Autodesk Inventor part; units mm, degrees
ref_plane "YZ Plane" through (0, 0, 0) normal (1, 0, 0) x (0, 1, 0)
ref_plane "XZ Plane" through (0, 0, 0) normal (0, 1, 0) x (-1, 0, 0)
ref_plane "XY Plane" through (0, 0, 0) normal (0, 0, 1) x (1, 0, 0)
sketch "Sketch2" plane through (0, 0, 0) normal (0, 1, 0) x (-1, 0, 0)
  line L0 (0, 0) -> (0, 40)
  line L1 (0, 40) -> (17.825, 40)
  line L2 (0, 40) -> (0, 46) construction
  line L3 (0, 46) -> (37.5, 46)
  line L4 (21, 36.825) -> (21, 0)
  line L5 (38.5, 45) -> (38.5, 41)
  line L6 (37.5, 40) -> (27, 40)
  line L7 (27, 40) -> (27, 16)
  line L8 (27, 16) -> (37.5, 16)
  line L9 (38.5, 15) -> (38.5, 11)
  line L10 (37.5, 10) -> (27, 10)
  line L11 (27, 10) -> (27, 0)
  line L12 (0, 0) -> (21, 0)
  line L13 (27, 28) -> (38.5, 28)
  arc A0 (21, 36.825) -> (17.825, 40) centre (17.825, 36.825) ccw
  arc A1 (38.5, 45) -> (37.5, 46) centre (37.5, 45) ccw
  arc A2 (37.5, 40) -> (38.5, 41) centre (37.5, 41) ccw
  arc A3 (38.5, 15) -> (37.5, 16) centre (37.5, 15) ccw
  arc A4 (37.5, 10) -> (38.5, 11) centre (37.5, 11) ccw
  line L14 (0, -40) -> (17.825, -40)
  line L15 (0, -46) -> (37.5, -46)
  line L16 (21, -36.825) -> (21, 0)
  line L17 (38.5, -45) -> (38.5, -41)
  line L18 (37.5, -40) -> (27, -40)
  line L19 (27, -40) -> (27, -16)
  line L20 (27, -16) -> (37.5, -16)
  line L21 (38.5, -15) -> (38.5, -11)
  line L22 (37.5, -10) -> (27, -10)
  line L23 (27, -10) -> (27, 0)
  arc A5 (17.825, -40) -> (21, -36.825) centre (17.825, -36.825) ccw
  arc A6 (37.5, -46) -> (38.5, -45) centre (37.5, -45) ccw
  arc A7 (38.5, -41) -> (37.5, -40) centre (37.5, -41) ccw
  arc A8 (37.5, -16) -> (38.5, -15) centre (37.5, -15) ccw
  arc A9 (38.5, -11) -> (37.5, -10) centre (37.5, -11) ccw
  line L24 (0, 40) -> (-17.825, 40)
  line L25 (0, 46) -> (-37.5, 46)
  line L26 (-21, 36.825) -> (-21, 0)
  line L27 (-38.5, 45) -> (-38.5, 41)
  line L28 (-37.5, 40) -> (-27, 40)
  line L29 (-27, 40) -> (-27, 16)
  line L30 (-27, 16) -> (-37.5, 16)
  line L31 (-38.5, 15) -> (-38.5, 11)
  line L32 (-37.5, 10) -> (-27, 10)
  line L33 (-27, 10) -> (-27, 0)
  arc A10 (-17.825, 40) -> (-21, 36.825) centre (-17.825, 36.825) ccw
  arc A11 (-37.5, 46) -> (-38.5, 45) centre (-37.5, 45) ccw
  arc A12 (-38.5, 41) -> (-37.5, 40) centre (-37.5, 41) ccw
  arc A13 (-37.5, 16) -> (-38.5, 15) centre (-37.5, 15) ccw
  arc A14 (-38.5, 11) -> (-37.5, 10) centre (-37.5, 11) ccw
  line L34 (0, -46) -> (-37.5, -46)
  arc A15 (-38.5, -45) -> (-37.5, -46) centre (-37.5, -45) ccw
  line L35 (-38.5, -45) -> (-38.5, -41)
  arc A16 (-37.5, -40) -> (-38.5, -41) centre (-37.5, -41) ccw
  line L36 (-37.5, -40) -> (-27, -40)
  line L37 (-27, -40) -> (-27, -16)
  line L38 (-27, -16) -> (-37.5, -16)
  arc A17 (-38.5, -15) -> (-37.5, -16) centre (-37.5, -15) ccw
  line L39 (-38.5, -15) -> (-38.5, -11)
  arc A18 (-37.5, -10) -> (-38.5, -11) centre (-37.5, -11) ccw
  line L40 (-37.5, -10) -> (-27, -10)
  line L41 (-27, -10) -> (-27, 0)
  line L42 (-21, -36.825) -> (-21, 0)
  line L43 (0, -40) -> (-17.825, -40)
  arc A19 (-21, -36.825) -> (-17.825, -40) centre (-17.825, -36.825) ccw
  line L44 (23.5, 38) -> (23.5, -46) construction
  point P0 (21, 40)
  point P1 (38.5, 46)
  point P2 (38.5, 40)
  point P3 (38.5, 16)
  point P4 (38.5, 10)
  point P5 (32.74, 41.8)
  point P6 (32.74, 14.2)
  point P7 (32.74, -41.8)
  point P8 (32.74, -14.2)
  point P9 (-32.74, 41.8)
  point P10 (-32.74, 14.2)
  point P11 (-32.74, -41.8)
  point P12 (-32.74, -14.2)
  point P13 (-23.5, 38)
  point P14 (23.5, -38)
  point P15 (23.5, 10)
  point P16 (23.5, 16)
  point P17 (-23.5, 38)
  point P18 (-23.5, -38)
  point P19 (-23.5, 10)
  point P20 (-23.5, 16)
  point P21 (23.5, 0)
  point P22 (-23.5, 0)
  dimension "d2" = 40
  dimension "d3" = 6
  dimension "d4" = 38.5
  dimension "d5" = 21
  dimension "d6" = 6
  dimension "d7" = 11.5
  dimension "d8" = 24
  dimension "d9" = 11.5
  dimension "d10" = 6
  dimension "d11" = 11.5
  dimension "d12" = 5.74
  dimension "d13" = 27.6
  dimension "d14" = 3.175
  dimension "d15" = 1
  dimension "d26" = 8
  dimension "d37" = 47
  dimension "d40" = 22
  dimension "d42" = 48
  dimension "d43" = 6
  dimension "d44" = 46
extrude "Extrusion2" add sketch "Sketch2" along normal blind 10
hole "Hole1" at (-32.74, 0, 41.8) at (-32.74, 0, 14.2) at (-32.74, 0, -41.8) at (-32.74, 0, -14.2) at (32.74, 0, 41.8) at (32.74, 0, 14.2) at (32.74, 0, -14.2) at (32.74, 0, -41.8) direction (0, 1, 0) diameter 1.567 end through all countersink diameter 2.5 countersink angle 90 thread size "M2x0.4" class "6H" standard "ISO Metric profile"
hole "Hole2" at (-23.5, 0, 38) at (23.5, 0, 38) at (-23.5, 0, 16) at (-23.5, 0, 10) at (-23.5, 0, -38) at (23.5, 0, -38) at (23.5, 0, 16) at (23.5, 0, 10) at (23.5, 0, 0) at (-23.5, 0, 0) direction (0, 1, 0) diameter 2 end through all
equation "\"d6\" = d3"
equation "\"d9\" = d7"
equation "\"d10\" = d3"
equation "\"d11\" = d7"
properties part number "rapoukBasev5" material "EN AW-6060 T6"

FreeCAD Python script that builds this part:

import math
import FreeCAD as App
import Part
import Sketcher
Q = App.Units.Quantity

doc = App.newDocument("Part")
params = doc.addObject("Spreadsheet::Sheet", "Params")
for row, (alias, value) in enumerate([
    ("sketch1_radius", "1 mm"),
    ("sketch1_height", "24 mm"),
    ("sketch1_width", "10.5 mm"),
    ("pad1_length", "10 mm"),
    ("hole_diameter", "1.567 mm"),
    ("hole_csink_diameter", "2.5 mm"),
    ("sketch3_diameter", "2 mm"),
    ("hole2_diameter", "2 mm"),
], start=1):
    params.set(f"A{row}", alias)
    params.set(f"B{row}", "=" + value)
    params.setAlias(f"B{row}", alias)

body = doc.addObject("PartDesign::Body", "Body")

# Sketch on XZ plane
sketch1 = body.newObject("Sketcher::SketchObject", "Sketch")
sketch1.AttachmentSupport = (doc.getObject("XZ_Plane"), [""])
sketch1.MapMode = "FlatFace"
sketch1.addGeometry(Part.LineSegment(App.Vector(-37.5, 46, 0), App.Vector(37.5, 46, 0)), False)
sketch1.addGeometry(Part.ArcOfCircle(Part.Circle(App.Vector(37.5, 45, 0), App.Vector(0, 0, 1), 1), math.radians(0), math.radians(90)), False)
sketch1.addGeometry(Part.LineSegment(App.Vector(38.5, 45, 0), App.Vector(38.5, 41, 0)), False)
sketch1.addGeometry(Part.ArcOfCircle(Part.Circle(App.Vector(37.5, 41, 0), App.Vector(0, 0, 1), 1), math.radians(-90), math.radians(0)), False)
sketch1.addGeometry(Part.LineSegment(App.Vector(37.5, 40, 0), App.Vector(27, 40, 0)), False)
sketch1.addGeometry(Part.LineSegment(App.Vector(27, 40, 0), App.Vector(27, 16, 0)), False)
sketch1.addGeometry(Part.LineSegment(App.Vector(27, 16, 0), App.Vector(37.5, 16, 0)), False)
sketch1.addGeometry(Part.ArcOfCircle(Part.Circle(App.Vector(37.5, 15, 0), App.Vector(0, 0, 1), 1), math.radians(0), math.radians(90)), False)
sketch1.addGeometry(Part.LineSegment(App.Vector(38.5, 15, 0), App.Vector(38.5, 11, 0)), False)
sketch1.addGeometry(Part.ArcOfCircle(Part.Circle(App.Vector(37.5, 11, 0), App.Vector(0, 0, 1), 1), math.radians(-90), math.radians(0)), False)
sketch1.addGeometry(Part.LineSegment(App.Vector(37.5, 10, 0), App.Vector(27, 10, 0)), False)
sketch1.addGeometry(Part.LineSegment(App.Vector(27, 10, 0), App.Vector(27, -10, 0)), False)
sketch1.addGeometry(Part.LineSegment(App.Vector(27, -10, 0), App.Vector(37.5, -10, 0)), False)
sketch1.addGeometry(Part.ArcOfCircle(Part.Circle(App.Vector(37.5, -11, 0), App.Vector(0, 0, 1), 1), math.radians(0), math.radians(90)), False)
sketch1.addGeometry(Part.LineSegment(App.Vector(38.5, -11, 0), App.Vector(38.5, -15, 0)), False)
sketch1.addGeometry(Part.ArcOfCircle(Part.Circle(App.Vector(37.5, -15, 0), App.Vector(0, 0, 1), 1), math.radians(-90), math.radians(0)), False)
sketch1.addGeometry(Part.LineSegment(App.Vector(37.5, -16, 0), App.Vector(27, -16, 0)), False)
sketch1.addGeometry(Part.LineSegment(App.Vector(27, -16, 0), App.Vector(27, -40, 0)), False)
sketch1.addGeometry(Part.LineSegment(App.Vector(27, -40, 0), App.Vector(37.5, -40, 0)), False)
sketch1.addGeometry(Part.ArcOfCircle(Part.Circle(App.Vector(37.5, -41, 0), App.Vector(0, 0, 1), 1), math.radians(0), math.radians(90)), False)
sketch1.addGeometry(Part.LineSegment(App.Vector(38.5, -41, 0), App.Vector(38.5, -45, 0)), False)
sketch1.addGeometry(Part.ArcOfCircle(Part.Circle(App.Vector(37.5, -45, 0), App.Vector(0, 0, 1), 1), math.radians(-90), math.radians(0)), False)
sketch1.addGeometry(Part.LineSegment(App.Vector(37.5, -46, 0), App.Vector(-37.5, -46, 0)), False)
sketch1.addGeometry(Part.ArcOfCircle(Part.Circle(App.Vector(-37.5, -45, 0), App.Vector(0, 0, 1), 1), math.radians(180), math.radians(270)), False)
sketch1.addGeometry(Part.LineSegment(App.Vector(-38.5, -45, 0), App.Vector(-38.5, -41, 0)), False)
sketch1.addGeometry(Part.ArcOfCircle(Part.Circle(App.Vector(-37.5, -41, 0), App.Vector(0, 0, 1), 1), math.radians(90), math.radians(180)), False)
sketch1.addGeometry(Part.LineSegment(App.Vector(-37.5, -40, 0), App.Vector(-27, -40, 0)), False)
sketch1.addGeometry(Part.LineSegment(App.Vector(-27, -40, 0), App.Vector(-27, -16, 0)), False)
sketch1.addGeometry(Part.LineSegment(App.Vector(-27, -16, 0), App.Vector(-37.5, -16, 0)), False)
sketch1.addGeometry(Part.ArcOfCircle(Part.Circle(App.Vector(-37.5, -15, 0), App.Vector(0, 0, 1), 1), math.radians(180), math.radians(270)), False)
sketch1.addGeometry(Part.LineSegment(App.Vector(-38.5, -15, 0), App.Vector(-38.5, -11, 0)), False)
sketch1.addGeometry(Part.ArcOfCircle(Part.Circle(App.Vector(-37.5, -11, 0), App.Vector(0, 0, 1), 1), math.radians(90), math.radians(180)), False)
sketch1.addGeometry(Part.LineSegment(App.Vector(-37.5, -10, 0), App.Vector(-27, -10, 0)), False)
sketch1.addGeometry(Part.LineSegment(App.Vector(-27, -10, 0), App.Vector(-27, 10, 0)), False)
sketch1.addGeometry(Part.LineSegment(App.Vector(-27, 10, 0), App.Vector(-37.5, 10, 0)), False)
sketch1.addGeometry(Part.ArcOfCircle(Part.Circle(App.Vector(-37.5, 11, 0), App.Vector(0, 0, 1), 1), math.radians(180), math.radians(270)), False)
sketch1.addGeometry(Part.LineSegment(App.Vector(-38.5, 11, 0), App.Vector(-38.5, 15, 0)), False)
sketch1.addGeometry(Part.ArcOfCircle(Part.Circle(App.Vector(-37.5, 15, 0), App.Vector(0, 0, 1), 1), math.radians(90), math.radians(180)), False)
sketch1.addGeometry(Part.LineSegment(App.Vector(-37.5, 16, 0), App.Vector(-27, 16, 0)), False)
sketch1.addGeometry(Part.LineSegment(App.Vector(-27, 16, 0), App.Vector(-27, 40, 0)), False)
sketch1.addGeometry(Part.LineSegment(App.Vector(-27, 40, 0), App.Vector(-37.5, 40, 0)), False)
sketch1.addGeometry(Part.ArcOfCircle(Part.Circle(App.Vector(-37.5, 41, 0), App.Vector(0, 0, 1), 1), math.radians(180), math.radians(270)), False)
sketch1.addGeometry(Part.LineSegment(App.Vector(-38.5, 41, 0), App.Vector(-38.5, 45, 0)), False)
sketch1.addGeometry(Part.ArcOfCircle(Part.Circle(App.Vector(-37.5, 45, 0), App.Vector(0, 0, 1), 1), math.radians(90), math.radians(180)), False)
sketch1.addGeometry(Part.LineSegment(App.Vector(17.825, 40, 0), App.Vector(-17.825, 40, 0)), False)
sketch1.addGeometry(Part.ArcOfCircle(Part.Circle(App.Vector(-17.825, 36.825, 0), App.Vector(0, 0, 1), 3.175), math.radians(90), math.radians(180)), False)
sketch1.addGeometry(Part.LineSegment(App.Vector(-21, 36.825, 0), App.Vector(-21, -36.825, 0)), False)
sketch1.addGeometry(Part.ArcOfCircle(Part.Circle(App.Vector(-17.825, -36.825, 0), App.Vector(0, 0, 1), 3.175), math.radians(180), math.radians(270)), False)
sketch1.addGeometry(Part.LineSegment(App.Vector(-17.825, -40, 0), App.Vector(17.825, -40, 0)), False)
sketch1.addGeometry(Part.ArcOfCircle(Part.Circle(App.Vector(17.825, -36.825, 0), App.Vector(0, 0, 1), 3.175), math.radians(-90), math.radians(0)), False)
sketch1.addGeometry(Part.LineSegment(App.Vector(21, -36.825, 0), App.Vector(21, 36.825, 0)), False)
sketch1.addGeometry(Part.ArcOfCircle(Part.Circle(App.Vector(17.825, 36.825, 0), App.Vector(0, 0, 1), 3.175), math.radians(0), math.radians(90)), False)
sketch1.addConstraint(Sketcher.Constraint("Tangent", 0, 2, 1, 2))
sketch1.addConstraint(Sketcher.Constraint("Tangent", 1, 1, 2, 1))
sketch1.addConstraint(Sketcher.Constraint("Tangent", 2, 2, 3, 2))
sketch1.addConstraint(Sketcher.Constraint("Tangent", 3, 1, 4, 1))
sketch1.addConstraint(Sketcher.Constraint("Coincident", 4, 2, 5, 1))
sketch1.addConstraint(Sketcher.Constraint("Coincident", 5, 2, 6, 1))
sketch1.addConstraint(Sketcher.Constraint("Tangent", 6, 2, 7, 2))
sketch1.addConstraint(Sketcher.Constraint("Tangent", 7, 1, 8, 1))
sketch1.addConstraint(Sketcher.Constraint("Tangent", 8, 2, 9, 2))
sketch1.addConstraint(Sketcher.Constraint("Tangent", 9, 1, 10, 1))
sketch1.addConstraint(Sketcher.Constraint("Coincident", 10, 2, 11, 1))
sketch1.addConstraint(Sketcher.Constraint("Coincident", 11, 2, 12, 1))
sketch1.addConstraint(Sketcher.Constraint("Tangent", 12, 2, 13, 2))
sketch1.addConstraint(Sketcher.Constraint("Tangent", 13, 1, 14, 1))
sketch1.addConstraint(Sketcher.Constraint("Tangent", 14, 2, 15, 2))
sketch1.addConstraint(Sketcher.Constraint("Tangent", 15, 1, 16, 1))
sketch1.addConstraint(Sketcher.Constraint("Coincident", 16, 2, 17, 1))
sketch1.addConstraint(Sketcher.Constraint("Coincident", 17, 2, 18, 1))
sketch1.addConstraint(Sketcher.Constraint("Tangent", 18, 2, 19, 2))
sketch1.addConstraint(Sketcher.Constraint("Tangent", 19, 1, 20, 1))
sketch1.addConstraint(Sketcher.Constraint("Tangent", 20, 2, 21, 2))
sketch1.addConstraint(Sketcher.Constraint("Tangent", 21, 1, 22, 1))
sketch1.addConstraint(Sketcher.Constraint("Tangent", 22, 2, 23, 2))
sketch1.addConstraint(Sketcher.Constraint("Tangent", 23, 1, 24, 1))
sketch1.addConstraint(Sketcher.Constraint("Tangent", 24, 2, 25, 2))
sketch1.addConstraint(Sketcher.Constraint("Tangent", 25, 1, 26, 1))
sketch1.addConstraint(Sketcher.Constraint("Coincident", 26, 2, 27, 1))
sketch1.addConstraint(Sketcher.Constraint("Coincident", 27, 2, 28, 1))
sketch1.addConstraint(Sketcher.Constraint("Tangent", 28, 2, 29, 2))
sketch1.addConstraint(Sketcher.Constraint("Tangent", 29, 1, 30, 1))
sketch1.addConstraint(Sketcher.Constraint("Tangent", 30, 2, 31, 2))
sketch1.addConstraint(Sketcher.Constraint("Tangent", 31, 1, 32, 1))
sketch1.addConstraint(Sketcher.Constraint("Coincident", 32, 2, 33, 1))
sketch1.addConstraint(Sketcher.Constraint("Coincident", 33, 2, 34, 1))
sketch1.addConstraint(Sketcher.Constraint("Tangent", 34, 2, 35, 2))
sketch1.addConstraint(Sketcher.Constraint("Tangent", 35, 1, 36, 1))
sketch1.addConstraint(Sketcher.Constraint("Tangent", 36, 2, 37, 2))
sketch1.addConstraint(Sketcher.Constraint("Tangent", 37, 1, 38, 1))
sketch1.addConstraint(Sketcher.Constraint("Coincident", 38, 2, 39, 1))
sketch1.addConstraint(Sketcher.Constraint("Coincident", 39, 2, 40, 1))
sketch1.addConstraint(Sketcher.Constraint("Tangent", 40, 2, 41, 2))
sketch1.addConstraint(Sketcher.Constraint("Tangent", 41, 1, 42, 1))
sketch1.addConstraint(Sketcher.Constraint("Tangent", 42, 2, 43, 2))
sketch1.addConstraint(Sketcher.Constraint("Tangent", 43, 1, 0, 1))
sketch1.addConstraint(Sketcher.Constraint("Tangent", 44, 2, 45, 1))
sketch1.addConstraint(Sketcher.Constraint("Tangent", 45, 2, 46, 1))
sketch1.addConstraint(Sketcher.Constraint("Tangent", 46, 2, 47, 1))
sketch1.addConstraint(Sketcher.Constraint("Tangent", 47, 2, 48, 1))
sketch1.addConstraint(Sketcher.Constraint("Tangent", 48, 2, 49, 1))
sketch1.addConstraint(Sketcher.Constraint("Tangent", 49, 2, 50, 1))
sketch1.addConstraint(Sketcher.Constraint("Tangent", 50, 2, 51, 1))
sketch1.addConstraint(Sketcher.Constraint("Tangent", 51, 2, 44, 1))
sketch1.addConstraint(Sketcher.Constraint("Horizontal", 0))
sketch1.addConstraint(Sketcher.Constraint("Vertical", 2))
sketch1.addConstraint(Sketcher.Constraint("Horizontal", 4))
sketch1.addConstraint(Sketcher.Constraint("Vertical", 5))
sketch1.addConstraint(Sketcher.Constraint("Horizontal", 6))
sketch1.addConstraint(Sketcher.Constraint("Vertical", 8))
sketch1.addConstraint(Sketcher.Constraint("Horizontal", 10))
sketch1.addConstraint(Sketcher.Constraint("Vertical", 11))
sketch1.addConstraint(Sketcher.Constraint("Horizontal", 12))
sketch1.addConstraint(Sketcher.Constraint("Vertical", 14))
sketch1.addConstraint(Sketcher.Constraint("Horizontal", 16))
sketch1.addConstraint(Sketcher.Constraint("Vertical", 17))
sketch1.addConstraint(Sketcher.Constraint("Horizontal", 18))
sketch1.addConstraint(Sketcher.Constraint("Vertical", 20))
sketch1.addConstraint(Sketcher.Constraint("Horizontal", 22))
sketch1.addConstraint(Sketcher.Constraint("Vertical", 24))
sketch1.addConstraint(Sketcher.Constraint("Horizontal", 26))
sketch1.addConstraint(Sketcher.Constraint("Vertical", 27))
sketch1.addConstraint(Sketcher.Constraint("Horizontal", 28))
sketch1.addConstraint(Sketcher.Constraint("Vertical", 30))
sketch1.addConstraint(Sketcher.Constraint("Horizontal", 32))
sketch1.addConstraint(Sketcher.Constraint("Vertical", 33))
sketch1.addConstraint(Sketcher.Constraint("Horizontal", 34))
sketch1.addConstraint(Sketcher.Constraint("Vertical", 36))
sketch1.addConstraint(Sketcher.Constraint("Horizontal", 38))
sketch1.addConstraint(Sketcher.Constraint("Vertical", 39))
sketch1.addConstraint(Sketcher.Constraint("Horizontal", 40))
sketch1.addConstraint(Sketcher.Constraint("Vertical", 42))
sketch1.addConstraint(Sketcher.Constraint("Horizontal", 44))
sketch1.addConstraint(Sketcher.Constraint("Vertical", 46))
sketch1.addConstraint(Sketcher.Constraint("Horizontal", 48))
sketch1.addConstraint(Sketcher.Constraint("Vertical", 50))
sketch1.addConstraint(Sketcher.Constraint("Equal", 1, 3))
sketch1.addConstraint(Sketcher.Constraint("Equal", 3, 7))
sketch1.addConstraint(Sketcher.Constraint("Equal", 7, 9))
sketch1.addConstraint(Sketcher.Constraint("Equal", 9, 13))
sketch1.addConstraint(Sketcher.Constraint("Equal", 13, 15))
sketch1.addConstraint(Sketcher.Constraint("Equal", 15, 19))
sketch1.addConstraint(Sketcher.Constraint("Equal", 19, 21))
sketch1.addConstraint(Sketcher.Constraint("Equal", 21, 23))
sketch1.addConstraint(Sketcher.Constraint("Equal", 23, 25))
sketch1.addConstraint(Sketcher.Constraint("Equal", 25, 29))
sketch1.addConstraint(Sketcher.Constraint("Equal", 29, 31))
sketch1.addConstraint(Sketcher.Constraint("Equal", 31, 35))
sketch1.addConstraint(Sketcher.Constraint("Equal", 35, 37))
sketch1.addConstraint(Sketcher.Constraint("Equal", 37, 41))
sketch1.addConstraint(Sketcher.Constraint("Equal", 41, 43))
sketch1.addConstraint(Sketcher.Constraint("Equal", 45, 47))
sketch1.addConstraint(Sketcher.Constraint("Equal", 47, 49))
sketch1.addConstraint(Sketcher.Constraint("Equal", 49, 51))
sketch1.addConstraint(Sketcher.Constraint("Symmetric", 1, 3, 23, 3, -1, 1))
sketch1.addConstraint(Sketcher.Constraint("Symmetric", 7, 3, 29, 3, -1, 1))
sketch1.addConstraint(Sketcher.Constraint("Symmetric", 13, 3, 35, 3, -1, 1))
sketch1.addConstraint(Sketcher.Constraint("Symmetric", 19, 3, 41, 3, -1, 1))
sketch1.addConstraint(Sketcher.Constraint("Symmetric", 45, 3, 49, 3, -1, 1))
sketch1.addConstraint(Sketcher.Constraint("Symmetric", 4, 2, 26, 2, -1, 1))
sketch1.addConstraint(Sketcher.Constraint("Symmetric", 10, 2, 32, 2, -1, 1))
sketch1.addConstraint(Sketcher.Constraint("Symmetric", 16, 2, 38, 2, -1, 1))
sketch1.addConstraint(Sketcher.Constraint("Symmetric", 19, 3, 25, 3, -2))
sketch1.addConstraint(Sketcher.Constraint("Symmetric", 15, 3, 29, 3, -2))
sketch1.addConstraint(Sketcher.Constraint("Horizontal", 13, 3, 31, 3))
sketch1.addConstraint(Sketcher.Constraint("Horizontal", 40, 2, 44, 2))
sketch1.addConstraint(Sketcher.Constraint("Vertical", 3, 3, 7, 3))
sketch1.addConstraint(Sketcher.Constraint("Vertical", 5, 2, 10, 2))
sketch1.addConstraint(Sketcher.Constraint("Vertical", 11, 2, 16, 2))
sketch1.addConstraint(Sketcher.Constraint("Equal", 2, 8))
sketch1.addConstraint(Sketcher.Constraint("Radius", 1, Q("1 mm")))
sketch1.addConstraint(Sketcher.Constraint("DistanceY", 5, 2, 5, 1, Q("24 mm")))
sketch1.addConstraint(Sketcher.Constraint("DistanceY", -1, 1, 0, 2, Q("46 mm")))
sketch1.addConstraint(Sketcher.Constraint("DistanceY", -1, 1, 3, 1, Q("40 mm")))
sketch1.addConstraint(Sketcher.Constraint("DistanceX", 45, 2, -1, 1, Q("21 mm")))
sketch1.addConstraint(Sketcher.Constraint("Radius", 45, Q("3.175 mm")))
sketch1.addConstraint(Sketcher.Constraint("DistanceX", -1, 1, 1, 1, Q("38.5 mm")))
sketch1.addConstraint(Sketcher.Constraint("DistanceX", 4, 2, 4, 1, Q("10.5 mm")))
sketch1.setExpression("Constraints[118]", "Params.sketch1_radius")
sketch1.setExpression("Constraints[119]", "Params.sketch1_height")
sketch1.setExpression("Constraints[125]", "Params.sketch1_width")
pad1 = body.newObject("PartDesign::Pad", "Pad")
pad1.Profile = sketch1
pad1.setExpression("Length", "Params.pad1_length")
pad1.Reversed = True

# Sketch on XZ plane
sketch2 = body.newObject("Sketcher::SketchObject", "Sketch001")
sketch2.AttachmentSupport = (doc.getObject("XZ_Plane"), [""])
sketch2.MapMode = "FlatFace"
sketch2.addGeometry(Part.Circle(App.Vector(-32.74, 41.8, 0), App.Vector(0, 0, 1), 0.7835), False)
sketch2.addGeometry(Part.Circle(App.Vector(-32.74, 14.2, 0), App.Vector(0, 0, 1), 0.7835), False)
sketch2.addGeometry(Part.Circle(App.Vector(-32.74, -41.8, 0), App.Vector(0, 0, 1), 0.7835), False)
sketch2.addGeometry(Part.Circle(App.Vector(-32.74, -14.2, 0), App.Vector(0, 0, 1), 0.7835), False)
sketch2.addGeometry(Part.Circle(App.Vector(32.74, 41.8, 0), App.Vector(0, 0, 1), 0.7835), False)
sketch2.addGeometry(Part.Circle(App.Vector(32.74, 14.2, 0), App.Vector(0, 0, 1), 0.7835), False)
sketch2.addGeometry(Part.Circle(App.Vector(32.74, -14.2, 0), App.Vector(0, 0, 1), 0.7835), False)
sketch2.addGeometry(Part.Circle(App.Vector(32.74, -41.8, 0), App.Vector(0, 0, 1), 0.7835), False)
sketch2.addConstraint(Sketcher.Constraint("Equal", 0, 1))
sketch2.addConstraint(Sketcher.Constraint("Equal", 1, 2))
sketch2.addConstraint(Sketcher.Constraint("Equal", 2, 3))
sketch2.addConstraint(Sketcher.Constraint("Equal", 3, 4))
sketch2.addConstraint(Sketcher.Constraint("Equal", 4, 5))
sketch2.addConstraint(Sketcher.Constraint("Equal", 5, 6))
sketch2.addConstraint(Sketcher.Constraint("Equal", 6, 7))
sketch2.addConstraint(Sketcher.Constraint("Symmetric", 2, 3, 4, 3, -1, 1))
sketch2.addConstraint(Sketcher.Constraint("Symmetric", 3, 3, 5, 3, -1, 1))
sketch2.addConstraint(Sketcher.Constraint("Symmetric", 1, 3, 6, 3, -1, 1))
sketch2.addConstraint(Sketcher.Constraint("Symmetric", 0, 3, 7, 3, -1, 1))
sketch2.addConstraint(Sketcher.Constraint("Symmetric", 0, 3, 4, 3, -2))
sketch2.addConstraint(Sketcher.Constraint("Symmetric", 1, 3, 5, 3, -2))
sketch2.addConstraint(Sketcher.Constraint("Vertical", 0, 3, 1, 3))
sketch2.addConstraint(Sketcher.Constraint("Diameter", 0, Q("1.567 mm")))
sketch2.addConstraint(Sketcher.Constraint("DistanceY", 2, 3, 1, 3, Q("56 mm")))
sketch2.addConstraint(Sketcher.Constraint("DistanceY", -1, 1, 0, 3, Q("41.8 mm")))
sketch2.addConstraint(Sketcher.Constraint("DistanceX", 0, 3, -1, 1, Q("32.74 mm")))
doc.recompute()
hole = body.newObject("PartDesign::Hole", "Hole")
hole.Profile = sketch2
hole.ThreadType = "None"
hole.setExpression("Diameter", "Params.hole_diameter")
hole.DepthType = "ThroughAll"
hole.HoleCutType = "Countersink"
hole.setExpression("HoleCutDiameter", "Params.hole_csink_diameter")
hole.HoleCutCountersinkAngle = 90

# Sketch on XZ plane
sketch3 = body.newObject("Sketcher::SketchObject", "Sketch002")
sketch3.AttachmentSupport = (doc.getObject("XZ_Plane"), [""])
sketch3.MapMode = "FlatFace"
sketch3.addGeometry(Part.Circle(App.Vector(-23.5, 38, 0), App.Vector(0, 0, 1), 1), False)
sketch3.addGeometry(Part.Circle(App.Vector(23.5, 38, 0), App.Vector(0, 0, 1), 1), False)
sketch3.addGeometry(Part.Circle(App.Vector(-23.5, 16, 0), App.Vector(0, 0, 1), 1), False)
sketch3.addGeometry(Part.Circle(App.Vector(-23.5, 10, 0), App.Vector(0, 0, 1), 1), False)
sketch3.addGeometry(Part.Circle(App.Vector(-23.5, -38, 0), App.Vector(0, 0, 1), 1), False)
sketch3.addGeometry(Part.Circle(App.Vector(23.5, -38, 0), App.Vector(0, 0, 1), 1), False)
sketch3.addGeometry(Part.Circle(App.Vector(23.5, 16, 0), App.Vector(0, 0, 1), 1), False)
sketch3.addGeometry(Part.Circle(App.Vector(23.5, 10, 0), App.Vector(0, 0, 1), 1), False)
sketch3.addGeometry(Part.Circle(App.Vector(23.5, 0, 0), App.Vector(0, 0, 1), 1), False)
sketch3.addGeometry(Part.Circle(App.Vector(-23.5, 0, 0), App.Vector(0, 0, 1), 1), False)
sketch3.addConstraint(Sketcher.Constraint("Equal", 0, 1))
sketch3.addConstraint(Sketcher.Constraint("Equal", 1, 2))
sketch3.addConstraint(Sketcher.Constraint("Equal", 2, 3))
sketch3.addConstraint(Sketcher.Constraint("Equal", 3, 4))
sketch3.addConstraint(Sketcher.Constraint("Equal", 4, 5))
sketch3.addConstraint(Sketcher.Constraint("Equal", 5, 6))
sketch3.addConstraint(Sketcher.Constraint("Equal", 6, 7))
sketch3.addConstraint(Sketcher.Constraint("Equal", 7, 8))
sketch3.addConstraint(Sketcher.Constraint("Equal", 8, 9))
sketch3.addConstraint(Sketcher.Constraint("Symmetric", 1, 3, 4, 3, -1, 1))
sketch3.addConstraint(Sketcher.Constraint("Symmetric", 0, 3, 5, 3, -1, 1))
sketch3.addConstraint(Sketcher.Constraint("Symmetric", 8, 3, 9, 3, -1, 1))
sketch3.addConstraint(Sketcher.Constraint("Symmetric", 0, 3, 1, 3, -2))
sketch3.addConstraint(Sketcher.Constraint("Symmetric", 2, 3, 6, 3, -2))
sketch3.addConstraint(Sketcher.Constraint("Symmetric", 3, 3, 7, 3, -2))
sketch3.addConstraint(Sketcher.Constraint("PointOnObject", 8, 3, -1))
sketch3.addConstraint(Sketcher.Constraint("Vertical", 0, 3, 2, 3))
sketch3.addConstraint(Sketcher.Constraint("Vertical", 2, 3, 3, 3))
sketch3.addConstraint(Sketcher.Constraint("Vertical", 7, 3, 8, 3))
sketch3.addConstraint(Sketcher.Constraint("Diameter", 0, Q("2 mm")))
sketch3.addConstraint(Sketcher.Constraint("DistanceY", -1, 1, 0, 3, Q("38 mm")))
sketch3.addConstraint(Sketcher.Constraint("DistanceY", -1, 1, 2, 3, Q("16 mm")))
sketch3.addConstraint(Sketcher.Constraint("DistanceY", -1, 1, 3, 3, Q("10 mm")))
sketch3.addConstraint(Sketcher.Constraint("DistanceX", 0, 3, 1, 3, Q("47 mm")))
sketch3.setExpression("Constraints[19]", "Params.sketch3_diameter")
doc.recompute()
hole2 = body.newObject("PartDesign::Hole", "Hole001")
hole2.Profile = sketch3
hole2.ThreadType = "None"
hole2.setExpression("Diameter", "Params.hole2_diameter")
hole2.DepthType = "ThroughAll"

doc.recompute()
